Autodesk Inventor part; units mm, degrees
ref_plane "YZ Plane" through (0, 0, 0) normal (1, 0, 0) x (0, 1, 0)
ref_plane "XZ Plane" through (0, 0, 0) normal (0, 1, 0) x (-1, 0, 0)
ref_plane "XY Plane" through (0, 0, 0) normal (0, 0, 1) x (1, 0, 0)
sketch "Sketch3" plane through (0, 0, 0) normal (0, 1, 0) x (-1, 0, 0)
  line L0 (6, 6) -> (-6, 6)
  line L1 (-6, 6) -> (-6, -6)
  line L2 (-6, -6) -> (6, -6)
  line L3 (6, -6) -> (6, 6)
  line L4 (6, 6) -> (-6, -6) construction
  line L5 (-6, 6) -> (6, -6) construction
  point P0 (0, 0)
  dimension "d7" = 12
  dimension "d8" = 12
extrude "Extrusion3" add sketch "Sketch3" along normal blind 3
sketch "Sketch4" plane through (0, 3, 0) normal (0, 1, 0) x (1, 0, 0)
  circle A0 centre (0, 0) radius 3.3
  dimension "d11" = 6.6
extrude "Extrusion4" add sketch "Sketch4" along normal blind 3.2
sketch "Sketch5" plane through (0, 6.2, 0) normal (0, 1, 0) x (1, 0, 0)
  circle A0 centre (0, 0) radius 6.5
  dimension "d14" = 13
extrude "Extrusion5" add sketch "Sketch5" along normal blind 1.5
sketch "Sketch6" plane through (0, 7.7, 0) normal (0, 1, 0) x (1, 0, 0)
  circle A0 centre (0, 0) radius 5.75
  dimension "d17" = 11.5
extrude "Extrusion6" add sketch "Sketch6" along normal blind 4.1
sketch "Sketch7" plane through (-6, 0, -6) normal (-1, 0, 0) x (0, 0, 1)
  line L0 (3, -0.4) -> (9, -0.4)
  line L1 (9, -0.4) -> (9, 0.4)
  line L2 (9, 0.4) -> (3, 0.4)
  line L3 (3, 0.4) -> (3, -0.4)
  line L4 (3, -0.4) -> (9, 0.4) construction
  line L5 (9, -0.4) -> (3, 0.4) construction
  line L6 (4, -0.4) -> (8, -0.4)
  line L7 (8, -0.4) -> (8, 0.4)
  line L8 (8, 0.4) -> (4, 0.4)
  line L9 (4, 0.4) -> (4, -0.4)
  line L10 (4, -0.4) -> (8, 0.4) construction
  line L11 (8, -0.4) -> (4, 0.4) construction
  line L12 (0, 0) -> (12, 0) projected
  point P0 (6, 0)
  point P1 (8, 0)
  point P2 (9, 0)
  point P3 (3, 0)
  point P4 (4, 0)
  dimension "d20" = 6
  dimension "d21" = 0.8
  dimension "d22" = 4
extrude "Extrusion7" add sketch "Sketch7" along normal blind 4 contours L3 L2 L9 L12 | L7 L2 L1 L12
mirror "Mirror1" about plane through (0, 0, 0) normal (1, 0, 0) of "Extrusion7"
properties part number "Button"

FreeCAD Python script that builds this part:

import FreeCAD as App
import Part
import Sketcher

V = App.Vector
Q = App.Units.Quantity


def add_polygon(sketch, points):
    """Adds a closed chain of lines whose ends are joined by coincident constraints."""
    first, n = sketch.GeometryCount, len(points)
    for a, b in zip(points, points[1:] + points[:1]):
        sketch.addGeometry(Part.LineSegment(App.Vector(*a, 0), App.Vector(*b, 0)), False)
    for i in range(n):
        sketch.addConstraint(Sketcher.Constraint("Coincident", first + i, 2, first + (i + 1) % n, 1))

doc = App.newDocument("Part")
body = doc.addObject("PartDesign::Body", "Body")

# Sketch on XZ plane
sketch1 = body.newObject("Sketcher::SketchObject", "Sketch")
sketch1.AttachmentSupport = (doc.getObject("XZ_Plane"), [""])
sketch1.MapMode = "FlatFace"
add_polygon(sketch1, [(-6, -6), (-6, 6), (6, 6), (6, -6)])  # lines 0-3
sketch1.addConstraint([
    Sketcher.Constraint("Vertical", 0),
    Sketcher.Constraint("Horizontal", 1),
    Sketcher.Constraint("Vertical", 2),
    Sketcher.Constraint("Horizontal", 3),
    Sketcher.Constraint("Symmetric", 0, 2, 2, 2, -1, 1),
    Sketcher.Constraint("Equal", 3, 0),
    Sketcher.Constraint("DistanceX", 1, 1, 1, 2, Q("12 mm")),
])
pad1 = body.newObject("PartDesign::Pad", "Pad")
pad1.Profile = sketch1
pad1.Length = 3
pad1.Reversed = True

# Sketch on XZ plane
sketch2 = body.newObject("Sketcher::SketchObject", "Sketch001")
sketch2.AttachmentSupport = (doc.getObject("XZ_Plane"), [""])
sketch2.MapMode = "FlatFace"
sketch2.AttachmentOffset = App.Placement(V(0, 0, -3), App.Rotation())
sketch2.addGeometry(Part.Circle(V(0, 0, 0), V(0, 0, 1), 3.3), False)
sketch2.addConstraint([
    Sketcher.Constraint("Coincident", 0, 3, -1, 1),
    Sketcher.Constraint("Diameter", 0, Q("6.6 mm")),
])
pad2 = body.newObject("PartDesign::Pad", "Pad001")
pad2.Profile = sketch2
pad2.Length = 3.2
pad2.Reversed = True

# Sketch on XZ plane
sketch3 = body.newObject("Sketcher::SketchObject", "Sketch002")
sketch3.AttachmentSupport = (doc.getObject("XZ_Plane"), [""])
sketch3.MapMode = "FlatFace"
sketch3.AttachmentOffset = App.Placement(V(0, 0, -6.2), App.Rotation())
sketch3.addGeometry(Part.Circle(V(0, 0, 0), V(0, 0, 1), 6), False)
sketch3.addConstraint([
    Sketcher.Constraint("Coincident", 0, 3, -1, 1),
    Sketcher.Constraint("Diameter", 0, Q("13 mm")),
])
pad3 = body.newObject("PartDesign::Pad", "Pad002")
pad3.Profile = sketch3
pad3.Length = 1.5
pad3.Reversed = True

# Sketch on XZ plane
sketch4 = body.newObject("Sketcher::SketchObject", "Sketch003")
sketch4.AttachmentSupport = (doc.getObject("XZ_Plane"), [""])
sketch4.MapMode = "FlatFace"
sketch4.AttachmentOffset = App.Placement(V(0, 0, -7.7), App.Rotation())
sketch4.addGeometry(Part.Circle(V(0, 0, 0), V(0, 0, 1), 6), False)
sketch4.addConstraint([
    Sketcher.Constraint("Coincident", 0, 3, -1, 1),
    Sketcher.Constraint("Diameter", 0, Q("11.5 mm")),
])
pad4 = body.newObject("PartDesign::Pad", "Pad003")
pad4.Profile = sketch4
pad4.Length = 4.1
pad4.Reversed = True

# Sketch on YZ plane
sketch5 = body.newObject("Sketcher::SketchObject", "Sketch004")
sketch5.AttachmentSupport = (doc.getObject("YZ_Plane"), [""])
sketch5.MapMode = "FlatFace"
sketch5.AttachmentOffset = App.Placement(V(0, 0, -6), App.Rotation())
add_polygon(sketch5, [(0.4, -3), (0, -3), (0, -2), (0.4, -2)])  # lines 0-3
add_polygon(sketch5, [(0.4, 2), (0, 2), (0, 3), (0.4, 3)])  # lines 4-7
sketch5.addConstraint([
    Sketcher.Constraint("Horizontal", 0),
    Sketcher.Constraint("Vertical", 1),
    Sketcher.Constraint("Horizontal", 2),
    Sketcher.Constraint("Vertical", 3),
    Sketcher.Constraint("Horizontal", 4),
    Sketcher.Constraint("Vertical", 5),
    Sketcher.Constraint("Horizontal", 6),
    Sketcher.Constraint("Vertical", 7),
    Sketcher.Constraint("Symmetric", 1, 2, 4, 2, -1, 1),
    Sketcher.Constraint("Symmetric", 0, 2, 5, 2, -1),
    Sketcher.Constraint("Vertical", 3, 2, 6, 2),
    Sketcher.Constraint("DistanceY", 1, 2, 4, 2, Q("4 mm")),
    Sketcher.Constraint("DistanceY", 0, 2, 5, 2, Q("6 mm")),
    Sketcher.Constraint("DistanceX", 0, 2, 0, 1, Q("0.4 mm")),
])
pad5 = body.newObject("PartDesign::Pad", "Pad004")
pad5.Profile = sketch5
pad5.Length = 4
pad5.Reversed = True
doc.recompute()

mirrored = body.newObject("PartDesign::Mirrored", "Mirrored")
mirrored.Originals = [pad5]
mirrored.MirrorPlane = (doc.getObject("YZ_Plane"), [""])
body.Tip = mirrored

doc.recompute()
